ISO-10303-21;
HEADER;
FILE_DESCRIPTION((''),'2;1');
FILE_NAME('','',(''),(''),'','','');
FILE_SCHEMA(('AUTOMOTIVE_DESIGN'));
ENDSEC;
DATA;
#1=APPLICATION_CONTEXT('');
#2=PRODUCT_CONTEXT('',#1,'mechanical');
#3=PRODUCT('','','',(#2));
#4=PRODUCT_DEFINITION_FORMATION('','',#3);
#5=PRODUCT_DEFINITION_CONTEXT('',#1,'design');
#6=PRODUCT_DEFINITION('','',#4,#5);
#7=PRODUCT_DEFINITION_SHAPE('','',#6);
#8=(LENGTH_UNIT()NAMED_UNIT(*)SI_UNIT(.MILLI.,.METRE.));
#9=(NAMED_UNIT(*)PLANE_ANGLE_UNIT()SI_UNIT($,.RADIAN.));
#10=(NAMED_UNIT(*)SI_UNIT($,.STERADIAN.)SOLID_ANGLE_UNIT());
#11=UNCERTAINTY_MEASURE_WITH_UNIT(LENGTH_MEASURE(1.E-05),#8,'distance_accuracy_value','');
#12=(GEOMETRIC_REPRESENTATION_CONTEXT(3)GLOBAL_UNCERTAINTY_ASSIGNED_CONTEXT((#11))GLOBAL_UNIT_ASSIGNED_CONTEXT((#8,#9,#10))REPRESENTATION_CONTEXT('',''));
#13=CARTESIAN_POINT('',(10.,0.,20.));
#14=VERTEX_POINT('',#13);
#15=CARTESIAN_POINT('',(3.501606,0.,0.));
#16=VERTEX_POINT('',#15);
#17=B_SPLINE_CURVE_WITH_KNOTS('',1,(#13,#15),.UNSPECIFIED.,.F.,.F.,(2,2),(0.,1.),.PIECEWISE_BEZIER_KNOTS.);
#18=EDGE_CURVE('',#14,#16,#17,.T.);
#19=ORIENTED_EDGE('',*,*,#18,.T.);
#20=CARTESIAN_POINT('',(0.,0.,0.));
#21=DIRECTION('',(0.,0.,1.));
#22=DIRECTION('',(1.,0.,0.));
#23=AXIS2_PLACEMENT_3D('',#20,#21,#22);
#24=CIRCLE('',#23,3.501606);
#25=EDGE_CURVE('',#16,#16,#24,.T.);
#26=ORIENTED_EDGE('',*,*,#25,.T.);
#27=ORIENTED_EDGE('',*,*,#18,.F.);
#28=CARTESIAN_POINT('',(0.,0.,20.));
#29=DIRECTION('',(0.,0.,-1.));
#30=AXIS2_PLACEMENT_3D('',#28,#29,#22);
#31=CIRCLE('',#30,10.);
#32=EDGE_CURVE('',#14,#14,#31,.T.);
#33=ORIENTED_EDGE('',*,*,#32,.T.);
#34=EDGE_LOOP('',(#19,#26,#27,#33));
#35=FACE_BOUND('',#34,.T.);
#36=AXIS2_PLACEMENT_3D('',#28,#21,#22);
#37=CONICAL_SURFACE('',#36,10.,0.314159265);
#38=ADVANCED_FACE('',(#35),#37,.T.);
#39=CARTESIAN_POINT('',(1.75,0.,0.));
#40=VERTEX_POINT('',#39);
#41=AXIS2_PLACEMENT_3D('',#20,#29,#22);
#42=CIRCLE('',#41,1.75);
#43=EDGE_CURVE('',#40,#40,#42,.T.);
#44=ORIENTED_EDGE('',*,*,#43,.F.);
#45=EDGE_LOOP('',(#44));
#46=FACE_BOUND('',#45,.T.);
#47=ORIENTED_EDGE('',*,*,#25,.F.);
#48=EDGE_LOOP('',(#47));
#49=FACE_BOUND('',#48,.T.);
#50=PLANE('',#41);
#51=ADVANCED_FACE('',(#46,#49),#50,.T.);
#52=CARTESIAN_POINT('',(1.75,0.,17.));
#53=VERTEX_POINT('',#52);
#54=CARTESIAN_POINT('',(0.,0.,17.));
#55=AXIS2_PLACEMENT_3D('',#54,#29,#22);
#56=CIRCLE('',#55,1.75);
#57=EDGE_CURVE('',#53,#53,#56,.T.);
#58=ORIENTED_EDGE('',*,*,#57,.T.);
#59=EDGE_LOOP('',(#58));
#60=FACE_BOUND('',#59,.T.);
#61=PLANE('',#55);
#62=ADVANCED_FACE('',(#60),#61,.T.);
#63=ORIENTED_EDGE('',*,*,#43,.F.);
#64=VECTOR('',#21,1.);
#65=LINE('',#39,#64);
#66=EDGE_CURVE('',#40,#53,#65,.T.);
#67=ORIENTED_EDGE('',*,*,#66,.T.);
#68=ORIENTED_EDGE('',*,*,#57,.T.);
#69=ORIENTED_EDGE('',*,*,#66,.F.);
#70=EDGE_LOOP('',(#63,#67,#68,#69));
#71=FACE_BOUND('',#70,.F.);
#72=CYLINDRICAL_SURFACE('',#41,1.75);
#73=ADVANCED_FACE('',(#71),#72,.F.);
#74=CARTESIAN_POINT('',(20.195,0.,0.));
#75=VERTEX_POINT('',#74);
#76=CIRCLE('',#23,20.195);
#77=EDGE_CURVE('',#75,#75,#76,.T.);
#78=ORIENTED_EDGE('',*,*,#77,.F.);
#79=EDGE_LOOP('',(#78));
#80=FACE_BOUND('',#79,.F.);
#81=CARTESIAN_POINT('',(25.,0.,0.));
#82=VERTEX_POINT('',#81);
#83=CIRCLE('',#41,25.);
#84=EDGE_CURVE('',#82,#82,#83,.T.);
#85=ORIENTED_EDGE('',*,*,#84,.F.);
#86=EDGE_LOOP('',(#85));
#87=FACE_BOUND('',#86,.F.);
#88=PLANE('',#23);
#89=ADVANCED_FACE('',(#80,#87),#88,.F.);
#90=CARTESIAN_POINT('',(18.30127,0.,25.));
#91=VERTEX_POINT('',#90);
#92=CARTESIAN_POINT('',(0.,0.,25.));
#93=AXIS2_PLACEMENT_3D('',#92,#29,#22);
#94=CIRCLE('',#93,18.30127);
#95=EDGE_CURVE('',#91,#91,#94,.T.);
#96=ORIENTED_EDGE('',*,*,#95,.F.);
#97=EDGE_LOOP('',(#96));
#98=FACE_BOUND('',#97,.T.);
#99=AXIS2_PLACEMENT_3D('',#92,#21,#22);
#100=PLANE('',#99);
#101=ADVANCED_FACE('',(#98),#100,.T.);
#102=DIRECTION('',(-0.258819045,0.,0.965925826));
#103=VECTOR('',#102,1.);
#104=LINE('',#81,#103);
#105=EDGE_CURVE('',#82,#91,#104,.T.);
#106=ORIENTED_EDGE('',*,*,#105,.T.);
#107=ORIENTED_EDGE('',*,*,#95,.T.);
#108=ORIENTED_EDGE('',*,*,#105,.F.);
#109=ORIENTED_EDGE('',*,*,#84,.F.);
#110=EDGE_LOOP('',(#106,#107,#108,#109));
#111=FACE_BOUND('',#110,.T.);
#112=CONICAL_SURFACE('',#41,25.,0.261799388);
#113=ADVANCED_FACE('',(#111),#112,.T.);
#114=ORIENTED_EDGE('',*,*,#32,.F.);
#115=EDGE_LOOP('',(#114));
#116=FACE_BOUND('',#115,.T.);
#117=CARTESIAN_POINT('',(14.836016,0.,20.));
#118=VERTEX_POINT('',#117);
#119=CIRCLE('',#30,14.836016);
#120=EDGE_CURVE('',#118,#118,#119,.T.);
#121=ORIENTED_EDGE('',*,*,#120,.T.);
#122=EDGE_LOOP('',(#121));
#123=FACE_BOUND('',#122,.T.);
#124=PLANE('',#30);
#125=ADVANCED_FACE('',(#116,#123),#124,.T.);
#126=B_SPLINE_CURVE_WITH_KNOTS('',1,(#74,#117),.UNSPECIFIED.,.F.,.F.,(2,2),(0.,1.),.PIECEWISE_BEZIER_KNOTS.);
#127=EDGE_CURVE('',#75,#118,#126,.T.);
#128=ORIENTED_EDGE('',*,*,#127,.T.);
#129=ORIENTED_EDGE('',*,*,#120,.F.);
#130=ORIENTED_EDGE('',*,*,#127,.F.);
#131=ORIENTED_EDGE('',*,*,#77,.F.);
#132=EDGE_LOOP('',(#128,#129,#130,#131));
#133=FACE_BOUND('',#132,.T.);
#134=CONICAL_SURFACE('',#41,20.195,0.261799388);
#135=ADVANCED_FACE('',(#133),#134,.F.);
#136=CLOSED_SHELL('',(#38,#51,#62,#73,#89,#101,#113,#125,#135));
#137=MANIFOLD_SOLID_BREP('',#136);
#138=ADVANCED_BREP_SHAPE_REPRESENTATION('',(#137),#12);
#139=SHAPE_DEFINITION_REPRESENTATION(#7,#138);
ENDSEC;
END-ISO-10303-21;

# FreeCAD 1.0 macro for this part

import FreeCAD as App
import Part
import Sketcher
from FreeCAD import Vector

doc = App.newDocument("Part")
params = doc.addObject("Spreadsheet::Sheet", "Params")
for row, (alias, value) in enumerate([
    ("sketch1_diameter", "50 mm"),
    ("pad1_length", "25 mm"),
    ("pad1_taper", "-15 deg"),
    ("sketch2_diameter", "40.39 mm"),
    ("pocket1_length", "20 mm"),
    ("pocket1_taper", "-15 deg"),
    ("sketch3_diameter", "20 mm"),
    ("pad2_length", "20 mm"),
    ("pad2_taper", "-18 deg"),
    ("sketch4_diameter", "3.5 mm"),
    ("pocket2_length", "17 mm"),
], start=1):
    params.set(f"A{row}", alias)
    params.set(f"B{row}", "=" + value)
    params.setAlias(f"B{row}", alias)

body = doc.addObject("PartDesign::Body", "Body")

# Sketch on XY plane
sketch1 = body.newObject("Sketcher::SketchObject", "Sketch")
sketch1.AttachmentSupport = (doc.getObject("XY_Plane"), [""])
sketch1.MapMode = "FlatFace"
sketch1.addGeometry(Part.Circle(Vector(0, 0, 0), Vector(0, 0, 1), 25), False)
sketch1.addConstraint(Sketcher.Constraint("Coincident", 0, 3, -1, 1))
sketch1.addConstraint(Sketcher.Constraint("Diameter", 0, 50.0))
sketch1.setExpression("Constraints[1]", "Params.sketch1_diameter")
pad1 = body.newObject("PartDesign::Pad", "Pad")
pad1.Profile = sketch1
pad1.setExpression("Length", "Params.pad1_length")
pad1.setExpression("TaperAngle", "Params.pad1_taper")

# Sketch on XY plane
sketch2 = body.newObject("Sketcher::SketchObject", "Sketch001")
sketch2.AttachmentSupport = (doc.getObject("XY_Plane"), [""])
sketch2.MapMode = "FlatFace"
sketch2.addGeometry(Part.Circle(Vector(0, 0, 0), Vector(0, 0, 1), 20), False)
sketch2.addConstraint(Sketcher.Constraint("Coincident", 0, 3, -1, 1))
sketch2.addConstraint(Sketcher.Constraint("Diameter", 0, 40.39))
sketch2.setExpression("Constraints[1]", "Params.sketch2_diameter")
pocket1 = body.newObject("PartDesign::Pocket", "Pocket")
pocket1.Profile = sketch2
pocket1.setExpression("Length", "Params.pocket1_length")
pocket1.Reversed = True
pocket1.setExpression("TaperAngle", "Params.pocket1_taper")

# Sketch on XY plane
sketch3 = body.newObject("Sketcher::SketchObject", "Sketch002")
sketch3.AttachmentSupport = (doc.getObject("XY_Plane"), [""])
sketch3.MapMode = "FlatFace"
sketch3.AttachmentOffset = App.Placement(Vector(0, 0, 20), App.Rotation())
sketch3.addGeometry(Part.Circle(Vector(0, 0, 0), Vector(0, 0, 1), 10), False)
sketch3.addConstraint(Sketcher.Constraint("Coincident", 0, 3, -1, 1))
sketch3.addConstraint(Sketcher.Constraint("Diameter", 0, 20.0))
sketch3.setExpression("Constraints[1]", "Params.sketch3_diameter")
pad2 = body.newObject("PartDesign::Pad", "Pad001")
pad2.Profile = sketch3
pad2.setExpression("Length", "Params.pad2_length")
pad2.Reversed = True
pad2.setExpression("TaperAngle", "Params.pad2_taper")

# Sketch on XY plane
sketch4 = body.newObject("Sketcher::SketchObject", "Sketch003")
sketch4.AttachmentSupport = (doc.getObject("XY_Plane"), [""])
sketch4.MapMode = "FlatFace"
sketch4.addGeometry(Part.Circle(Vector(0, 0, 0), Vector(0, 0, 1), 1.8), False)
sketch4.addConstraint(Sketcher.Constraint("Coincident", 0, 3, -1, 1))
sketch4.addConstraint(Sketcher.Constraint("Diameter", 0, 3.5))
sketch4.setExpression("Constraints[1]", "Params.sketch4_diameter")
pocket2 = body.newObject("PartDesign::Pocket", "Pocket001")
pocket2.Profile = sketch4
pocket2.setExpression("Length", "Params.pocket2_length")
pocket2.Reversed = True

doc.recompute()
